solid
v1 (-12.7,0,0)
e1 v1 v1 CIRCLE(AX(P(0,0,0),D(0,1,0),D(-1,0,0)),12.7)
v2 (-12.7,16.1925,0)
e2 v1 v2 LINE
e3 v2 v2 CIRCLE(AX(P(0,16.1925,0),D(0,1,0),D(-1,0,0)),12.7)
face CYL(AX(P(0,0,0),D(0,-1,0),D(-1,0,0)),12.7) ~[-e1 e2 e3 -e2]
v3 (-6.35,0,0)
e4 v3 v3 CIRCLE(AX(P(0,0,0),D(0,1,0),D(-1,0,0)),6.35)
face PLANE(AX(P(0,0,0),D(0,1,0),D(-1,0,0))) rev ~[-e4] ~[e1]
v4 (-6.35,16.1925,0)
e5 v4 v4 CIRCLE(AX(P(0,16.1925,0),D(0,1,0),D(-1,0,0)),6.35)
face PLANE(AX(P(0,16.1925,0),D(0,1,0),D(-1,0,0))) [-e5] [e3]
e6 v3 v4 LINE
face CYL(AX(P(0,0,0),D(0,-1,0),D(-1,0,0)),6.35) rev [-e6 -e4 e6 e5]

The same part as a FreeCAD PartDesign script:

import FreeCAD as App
import Part
import Sketcher
Q = App.Units.Quantity

doc = App.newDocument("Part")
body = doc.addObject("PartDesign::Body", "Body")

# Sketch on XZ plane
sketch1 = doc.addObject("Sketcher::SketchObject", "Sketch")
body.addObject(sketch1)
sketch1.AttachmentSupport = (doc.XZ_Plane, [""])
sketch1.MapMode = "FlatFace"
sketch1.addGeometry([
    Part.Circle(App.Vector(0, 0, 0), App.Vector(0, 0, 1), 12.7),
    Part.Circle(App.Vector(0, 0, 0), App.Vector(0, 0, 1), 6.35),
], False)
sketch1.addConstraint([
    Sketcher.Constraint("Coincident", 0, 3, -1, 1),
    Sketcher.Constraint("Coincident", 1, 3, -1, 1),
    Sketcher.Constraint("Diameter", 0, Q("1 in")),
    Sketcher.Constraint("Diameter", 1, Q("0.5 in")),
])
pad1 = doc.addObject("PartDesign::Pad", "Pad")
body.addObject(pad1)
pad1.Profile = sketch1
pad1.Length = Q("0.6375 in")
pad1.Reversed = True

doc.recompute()
